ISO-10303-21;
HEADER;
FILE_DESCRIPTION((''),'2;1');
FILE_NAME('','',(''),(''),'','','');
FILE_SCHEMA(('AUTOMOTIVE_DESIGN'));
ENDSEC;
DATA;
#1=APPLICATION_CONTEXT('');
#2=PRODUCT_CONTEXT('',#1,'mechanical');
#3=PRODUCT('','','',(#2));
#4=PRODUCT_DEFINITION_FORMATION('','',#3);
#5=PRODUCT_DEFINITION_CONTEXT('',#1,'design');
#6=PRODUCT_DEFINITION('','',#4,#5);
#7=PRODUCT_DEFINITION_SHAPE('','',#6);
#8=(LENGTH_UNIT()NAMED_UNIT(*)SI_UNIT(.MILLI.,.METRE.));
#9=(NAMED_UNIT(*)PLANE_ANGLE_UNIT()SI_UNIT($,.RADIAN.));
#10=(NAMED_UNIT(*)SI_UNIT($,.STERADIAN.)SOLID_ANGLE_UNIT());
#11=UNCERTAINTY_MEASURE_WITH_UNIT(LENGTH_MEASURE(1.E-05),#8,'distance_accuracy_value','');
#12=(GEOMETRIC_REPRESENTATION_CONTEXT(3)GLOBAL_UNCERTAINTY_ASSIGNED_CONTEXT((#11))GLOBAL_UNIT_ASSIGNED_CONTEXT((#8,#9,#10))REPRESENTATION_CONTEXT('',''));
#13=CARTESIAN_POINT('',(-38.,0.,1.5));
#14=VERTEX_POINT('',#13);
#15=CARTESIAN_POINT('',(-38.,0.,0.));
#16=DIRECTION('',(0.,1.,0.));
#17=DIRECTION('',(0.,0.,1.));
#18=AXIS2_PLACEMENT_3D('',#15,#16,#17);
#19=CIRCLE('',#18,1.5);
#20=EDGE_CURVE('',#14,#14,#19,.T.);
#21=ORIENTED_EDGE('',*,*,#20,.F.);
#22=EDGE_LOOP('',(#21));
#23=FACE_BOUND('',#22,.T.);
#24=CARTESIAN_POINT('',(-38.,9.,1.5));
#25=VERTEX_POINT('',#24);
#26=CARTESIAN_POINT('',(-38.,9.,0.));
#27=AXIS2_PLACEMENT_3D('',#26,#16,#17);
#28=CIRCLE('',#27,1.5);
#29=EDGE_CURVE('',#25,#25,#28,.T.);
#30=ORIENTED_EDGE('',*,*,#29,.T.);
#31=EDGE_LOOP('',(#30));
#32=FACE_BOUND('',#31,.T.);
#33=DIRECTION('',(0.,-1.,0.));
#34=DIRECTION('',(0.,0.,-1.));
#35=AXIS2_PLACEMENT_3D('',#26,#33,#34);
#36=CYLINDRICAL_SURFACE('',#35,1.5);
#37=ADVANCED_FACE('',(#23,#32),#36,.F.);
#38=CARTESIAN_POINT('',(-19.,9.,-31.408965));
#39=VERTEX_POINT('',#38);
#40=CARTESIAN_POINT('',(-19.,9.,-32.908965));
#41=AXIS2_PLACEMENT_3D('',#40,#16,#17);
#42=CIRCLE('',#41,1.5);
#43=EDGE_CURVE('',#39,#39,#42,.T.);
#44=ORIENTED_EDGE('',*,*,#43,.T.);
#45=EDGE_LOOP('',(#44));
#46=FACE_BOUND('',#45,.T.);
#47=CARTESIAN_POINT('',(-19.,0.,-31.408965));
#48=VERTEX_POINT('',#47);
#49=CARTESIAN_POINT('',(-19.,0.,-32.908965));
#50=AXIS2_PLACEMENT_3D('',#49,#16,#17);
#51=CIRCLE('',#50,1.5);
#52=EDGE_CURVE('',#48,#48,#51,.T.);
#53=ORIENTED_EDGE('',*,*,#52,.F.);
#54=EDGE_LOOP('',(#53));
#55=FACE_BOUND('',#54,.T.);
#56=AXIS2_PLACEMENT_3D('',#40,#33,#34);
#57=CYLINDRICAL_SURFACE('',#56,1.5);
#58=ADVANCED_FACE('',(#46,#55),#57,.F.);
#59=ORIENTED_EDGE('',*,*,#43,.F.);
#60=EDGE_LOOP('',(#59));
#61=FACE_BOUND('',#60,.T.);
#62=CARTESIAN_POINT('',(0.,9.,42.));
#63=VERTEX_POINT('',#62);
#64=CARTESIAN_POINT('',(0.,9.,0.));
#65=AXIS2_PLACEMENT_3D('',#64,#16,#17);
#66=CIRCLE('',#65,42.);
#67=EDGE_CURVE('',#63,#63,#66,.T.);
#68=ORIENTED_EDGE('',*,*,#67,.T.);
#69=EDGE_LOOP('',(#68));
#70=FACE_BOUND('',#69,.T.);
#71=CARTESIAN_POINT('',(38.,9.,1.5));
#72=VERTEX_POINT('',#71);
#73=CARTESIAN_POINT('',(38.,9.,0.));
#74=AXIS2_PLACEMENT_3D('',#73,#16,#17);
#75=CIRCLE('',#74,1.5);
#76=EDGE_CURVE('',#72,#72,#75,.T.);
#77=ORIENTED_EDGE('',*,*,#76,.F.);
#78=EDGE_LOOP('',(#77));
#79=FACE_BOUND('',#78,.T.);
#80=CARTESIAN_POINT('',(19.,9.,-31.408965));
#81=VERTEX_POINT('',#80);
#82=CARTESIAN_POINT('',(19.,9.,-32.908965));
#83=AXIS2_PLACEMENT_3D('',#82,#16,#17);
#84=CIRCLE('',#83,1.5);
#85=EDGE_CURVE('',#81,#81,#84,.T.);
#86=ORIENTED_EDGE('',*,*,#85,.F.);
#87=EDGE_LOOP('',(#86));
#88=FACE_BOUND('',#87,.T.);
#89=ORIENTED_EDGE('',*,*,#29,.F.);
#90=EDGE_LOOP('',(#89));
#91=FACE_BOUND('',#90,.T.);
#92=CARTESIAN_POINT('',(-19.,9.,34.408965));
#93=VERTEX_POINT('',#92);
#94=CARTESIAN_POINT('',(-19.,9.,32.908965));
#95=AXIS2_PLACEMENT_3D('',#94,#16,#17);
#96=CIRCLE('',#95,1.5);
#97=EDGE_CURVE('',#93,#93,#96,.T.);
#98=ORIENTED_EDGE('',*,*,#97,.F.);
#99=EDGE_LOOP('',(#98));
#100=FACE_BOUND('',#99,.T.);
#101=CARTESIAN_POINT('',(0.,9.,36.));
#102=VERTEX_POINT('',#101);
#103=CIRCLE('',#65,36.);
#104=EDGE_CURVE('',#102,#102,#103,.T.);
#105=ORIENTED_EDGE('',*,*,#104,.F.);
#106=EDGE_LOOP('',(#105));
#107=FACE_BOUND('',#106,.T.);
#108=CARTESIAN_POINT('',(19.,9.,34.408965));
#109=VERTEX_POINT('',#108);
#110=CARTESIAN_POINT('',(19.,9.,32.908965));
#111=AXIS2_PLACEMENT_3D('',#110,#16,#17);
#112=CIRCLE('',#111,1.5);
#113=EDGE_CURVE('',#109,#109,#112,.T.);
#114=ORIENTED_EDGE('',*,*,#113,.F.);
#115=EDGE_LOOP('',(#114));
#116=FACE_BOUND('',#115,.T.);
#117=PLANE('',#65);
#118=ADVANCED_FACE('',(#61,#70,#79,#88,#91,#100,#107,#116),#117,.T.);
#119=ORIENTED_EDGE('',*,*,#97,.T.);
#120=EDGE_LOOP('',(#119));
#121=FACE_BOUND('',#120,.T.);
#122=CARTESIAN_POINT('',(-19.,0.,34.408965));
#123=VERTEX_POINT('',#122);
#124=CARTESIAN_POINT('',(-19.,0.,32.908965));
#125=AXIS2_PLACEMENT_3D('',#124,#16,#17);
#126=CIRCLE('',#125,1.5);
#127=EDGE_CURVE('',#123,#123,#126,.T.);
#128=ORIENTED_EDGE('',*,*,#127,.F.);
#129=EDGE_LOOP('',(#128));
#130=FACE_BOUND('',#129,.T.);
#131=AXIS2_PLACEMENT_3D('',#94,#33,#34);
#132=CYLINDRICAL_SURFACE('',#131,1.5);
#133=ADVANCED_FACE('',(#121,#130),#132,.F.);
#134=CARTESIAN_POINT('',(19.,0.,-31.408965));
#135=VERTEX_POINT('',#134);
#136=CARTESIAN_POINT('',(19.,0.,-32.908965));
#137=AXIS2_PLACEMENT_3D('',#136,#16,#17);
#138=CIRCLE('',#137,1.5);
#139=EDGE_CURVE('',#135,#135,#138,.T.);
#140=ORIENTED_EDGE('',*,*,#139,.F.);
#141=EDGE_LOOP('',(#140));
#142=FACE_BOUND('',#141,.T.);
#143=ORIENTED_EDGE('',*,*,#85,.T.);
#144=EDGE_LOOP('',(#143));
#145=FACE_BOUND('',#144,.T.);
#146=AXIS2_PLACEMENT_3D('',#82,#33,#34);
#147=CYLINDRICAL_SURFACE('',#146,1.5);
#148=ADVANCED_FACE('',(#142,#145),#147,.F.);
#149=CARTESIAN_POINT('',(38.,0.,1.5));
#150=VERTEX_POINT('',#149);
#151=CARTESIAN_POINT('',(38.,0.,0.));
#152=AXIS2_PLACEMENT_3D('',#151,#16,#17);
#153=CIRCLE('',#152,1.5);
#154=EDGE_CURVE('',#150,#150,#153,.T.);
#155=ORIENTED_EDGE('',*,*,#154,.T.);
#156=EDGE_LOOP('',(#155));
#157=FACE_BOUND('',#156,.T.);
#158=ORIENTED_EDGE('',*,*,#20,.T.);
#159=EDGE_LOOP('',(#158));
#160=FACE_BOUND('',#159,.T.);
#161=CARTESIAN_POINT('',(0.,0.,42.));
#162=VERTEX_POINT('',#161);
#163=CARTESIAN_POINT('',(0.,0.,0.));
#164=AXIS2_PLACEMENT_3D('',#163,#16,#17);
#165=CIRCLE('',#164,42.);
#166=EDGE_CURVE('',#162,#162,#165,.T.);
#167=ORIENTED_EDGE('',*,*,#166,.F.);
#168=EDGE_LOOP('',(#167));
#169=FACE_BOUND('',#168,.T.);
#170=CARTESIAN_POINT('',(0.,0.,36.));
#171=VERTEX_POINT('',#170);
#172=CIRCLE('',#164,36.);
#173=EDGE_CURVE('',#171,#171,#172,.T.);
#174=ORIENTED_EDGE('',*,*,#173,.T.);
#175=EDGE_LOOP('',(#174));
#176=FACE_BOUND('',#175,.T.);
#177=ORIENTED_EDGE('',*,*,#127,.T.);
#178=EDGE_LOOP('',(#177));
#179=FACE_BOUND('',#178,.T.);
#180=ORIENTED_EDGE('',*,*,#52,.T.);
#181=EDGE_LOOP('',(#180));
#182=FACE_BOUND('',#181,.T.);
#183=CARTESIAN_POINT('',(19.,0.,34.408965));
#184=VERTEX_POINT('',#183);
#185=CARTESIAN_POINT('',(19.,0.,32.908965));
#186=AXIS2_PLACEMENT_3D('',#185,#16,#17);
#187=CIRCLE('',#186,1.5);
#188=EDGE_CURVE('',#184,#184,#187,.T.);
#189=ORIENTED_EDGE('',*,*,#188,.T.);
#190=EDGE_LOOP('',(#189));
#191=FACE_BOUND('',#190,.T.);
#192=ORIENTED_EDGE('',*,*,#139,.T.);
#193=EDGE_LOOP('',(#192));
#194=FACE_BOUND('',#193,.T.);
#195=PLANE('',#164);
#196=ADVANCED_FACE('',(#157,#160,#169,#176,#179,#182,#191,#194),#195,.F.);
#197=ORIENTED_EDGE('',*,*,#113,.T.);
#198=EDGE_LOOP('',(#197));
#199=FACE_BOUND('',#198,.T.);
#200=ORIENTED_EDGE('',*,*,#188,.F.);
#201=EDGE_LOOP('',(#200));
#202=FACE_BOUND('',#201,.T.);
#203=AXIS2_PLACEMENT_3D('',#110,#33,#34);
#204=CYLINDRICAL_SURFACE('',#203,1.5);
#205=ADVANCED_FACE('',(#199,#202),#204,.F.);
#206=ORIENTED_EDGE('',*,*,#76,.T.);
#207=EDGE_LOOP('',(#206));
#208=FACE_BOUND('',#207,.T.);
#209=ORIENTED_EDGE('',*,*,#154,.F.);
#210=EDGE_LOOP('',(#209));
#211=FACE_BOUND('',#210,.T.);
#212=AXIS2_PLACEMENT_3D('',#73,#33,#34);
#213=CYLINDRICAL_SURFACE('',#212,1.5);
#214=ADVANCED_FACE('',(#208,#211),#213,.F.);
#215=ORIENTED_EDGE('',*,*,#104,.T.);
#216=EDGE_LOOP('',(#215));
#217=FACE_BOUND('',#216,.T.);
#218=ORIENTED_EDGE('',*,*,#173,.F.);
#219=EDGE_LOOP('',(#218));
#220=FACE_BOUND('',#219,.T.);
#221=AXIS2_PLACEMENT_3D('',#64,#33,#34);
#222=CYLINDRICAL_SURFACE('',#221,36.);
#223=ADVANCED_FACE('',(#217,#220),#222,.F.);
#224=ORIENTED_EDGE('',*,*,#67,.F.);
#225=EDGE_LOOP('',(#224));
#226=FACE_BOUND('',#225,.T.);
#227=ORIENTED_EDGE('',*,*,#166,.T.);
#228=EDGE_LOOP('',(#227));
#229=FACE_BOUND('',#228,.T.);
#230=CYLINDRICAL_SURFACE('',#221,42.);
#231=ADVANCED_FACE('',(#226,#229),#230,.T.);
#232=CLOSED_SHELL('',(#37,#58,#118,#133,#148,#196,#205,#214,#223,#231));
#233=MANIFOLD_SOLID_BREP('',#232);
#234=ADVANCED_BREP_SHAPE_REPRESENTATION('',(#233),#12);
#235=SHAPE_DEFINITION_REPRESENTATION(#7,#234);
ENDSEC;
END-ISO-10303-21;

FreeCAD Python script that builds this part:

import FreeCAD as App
import Part
import Sketcher
from FreeCAD import Vector

doc = App.newDocument("Part")
body = doc.addObject("PartDesign::Body", "Body")

sketch1 = doc.addObject("Sketcher::SketchObject", "Sketch")
body.addObject(sketch1)
sketch1.AttachmentSupport = (doc.XZ_Plane, [""])
sketch1.MapMode = "FlatFace"
sketch1.addGeometry(Part.Circle(Vector(0, 0, 0), Vector(0, 0, 1), 42), False)
sketch1.addGeometry(Part.Circle(Vector(-19, -32.9, 0), Vector(0, 0, 1), 1.5), False)
sketch1.addGeometry(Part.Circle(Vector(-38, 0, 0), Vector(0, 0, 1), 1.5), False)
sketch1.addGeometry(Part.Circle(Vector(-19, 32.9, 0), Vector(0, 0, 1), 1.5), False)
sketch1.addGeometry(Part.Circle(Vector(19, -32.9, 0), Vector(0, 0, 1), 1.5), False)
sketch1.addGeometry(Part.Circle(Vector(38, 0, 0), Vector(0, 0, 1), 1.5), False)
sketch1.addGeometry(Part.Circle(Vector(0, 0, 0), Vector(0, 0, 1), 36), False)
sketch1.addGeometry(Part.Circle(Vector(19, 32.9, 0), Vector(0, 0, 1), 1.5), False)
sketch1.addConstraint(Sketcher.Constraint("Coincident", 0, 3, -1, 1))
sketch1.addConstraint(Sketcher.Constraint("Coincident", 6, 3, -1, 1))
sketch1.addConstraint(Sketcher.Constraint("Equal", 1, 2))
sketch1.addConstraint(Sketcher.Constraint("Equal", 2, 3))
sketch1.addConstraint(Sketcher.Constraint("Equal", 3, 4))
sketch1.addConstraint(Sketcher.Constraint("Equal", 4, 5))
sketch1.addConstraint(Sketcher.Constraint("Equal", 5, 7))
sketch1.addConstraint(Sketcher.Constraint("Symmetric", 3, 3, 4, 3, -1, 1))
sketch1.addConstraint(Sketcher.Constraint("Symmetric", 2, 3, 5, 3, -1, 1))
sketch1.addConstraint(Sketcher.Constraint("Symmetric", 1, 3, 7, 3, -1, 1))
sketch1.addConstraint(Sketcher.Constraint("Symmetric", 1, 3, 4, 3, -2))
sketch1.addConstraint(Sketcher.Constraint("PointOnObject", 2, 3, -1))
sketch1.addConstraint(Sketcher.Constraint("Diameter", 0, 84.0))
sketch1.addConstraint(Sketcher.Constraint("Diameter", 1, 3.0))
sketch1.addConstraint(Sketcher.Constraint("Diameter", 6, 72.0))
sketch1.addConstraint(Sketcher.Constraint("DistanceX", 1, 3, -1, 1, 19.0))
sketch1.addConstraint(Sketcher.Constraint("DistanceX", 2, 3, -1, 1, 38.0))
sketch1.addConstraint(Sketcher.Constraint("DistanceY", 1, 3, 3, 3, 65.817931))
pad1 = doc.addObject("PartDesign::Pad", "Pad")
body.addObject(pad1)
pad1.Profile = sketch1
pad1.Length = 9
pad1.Reversed = True

doc.recompute()
